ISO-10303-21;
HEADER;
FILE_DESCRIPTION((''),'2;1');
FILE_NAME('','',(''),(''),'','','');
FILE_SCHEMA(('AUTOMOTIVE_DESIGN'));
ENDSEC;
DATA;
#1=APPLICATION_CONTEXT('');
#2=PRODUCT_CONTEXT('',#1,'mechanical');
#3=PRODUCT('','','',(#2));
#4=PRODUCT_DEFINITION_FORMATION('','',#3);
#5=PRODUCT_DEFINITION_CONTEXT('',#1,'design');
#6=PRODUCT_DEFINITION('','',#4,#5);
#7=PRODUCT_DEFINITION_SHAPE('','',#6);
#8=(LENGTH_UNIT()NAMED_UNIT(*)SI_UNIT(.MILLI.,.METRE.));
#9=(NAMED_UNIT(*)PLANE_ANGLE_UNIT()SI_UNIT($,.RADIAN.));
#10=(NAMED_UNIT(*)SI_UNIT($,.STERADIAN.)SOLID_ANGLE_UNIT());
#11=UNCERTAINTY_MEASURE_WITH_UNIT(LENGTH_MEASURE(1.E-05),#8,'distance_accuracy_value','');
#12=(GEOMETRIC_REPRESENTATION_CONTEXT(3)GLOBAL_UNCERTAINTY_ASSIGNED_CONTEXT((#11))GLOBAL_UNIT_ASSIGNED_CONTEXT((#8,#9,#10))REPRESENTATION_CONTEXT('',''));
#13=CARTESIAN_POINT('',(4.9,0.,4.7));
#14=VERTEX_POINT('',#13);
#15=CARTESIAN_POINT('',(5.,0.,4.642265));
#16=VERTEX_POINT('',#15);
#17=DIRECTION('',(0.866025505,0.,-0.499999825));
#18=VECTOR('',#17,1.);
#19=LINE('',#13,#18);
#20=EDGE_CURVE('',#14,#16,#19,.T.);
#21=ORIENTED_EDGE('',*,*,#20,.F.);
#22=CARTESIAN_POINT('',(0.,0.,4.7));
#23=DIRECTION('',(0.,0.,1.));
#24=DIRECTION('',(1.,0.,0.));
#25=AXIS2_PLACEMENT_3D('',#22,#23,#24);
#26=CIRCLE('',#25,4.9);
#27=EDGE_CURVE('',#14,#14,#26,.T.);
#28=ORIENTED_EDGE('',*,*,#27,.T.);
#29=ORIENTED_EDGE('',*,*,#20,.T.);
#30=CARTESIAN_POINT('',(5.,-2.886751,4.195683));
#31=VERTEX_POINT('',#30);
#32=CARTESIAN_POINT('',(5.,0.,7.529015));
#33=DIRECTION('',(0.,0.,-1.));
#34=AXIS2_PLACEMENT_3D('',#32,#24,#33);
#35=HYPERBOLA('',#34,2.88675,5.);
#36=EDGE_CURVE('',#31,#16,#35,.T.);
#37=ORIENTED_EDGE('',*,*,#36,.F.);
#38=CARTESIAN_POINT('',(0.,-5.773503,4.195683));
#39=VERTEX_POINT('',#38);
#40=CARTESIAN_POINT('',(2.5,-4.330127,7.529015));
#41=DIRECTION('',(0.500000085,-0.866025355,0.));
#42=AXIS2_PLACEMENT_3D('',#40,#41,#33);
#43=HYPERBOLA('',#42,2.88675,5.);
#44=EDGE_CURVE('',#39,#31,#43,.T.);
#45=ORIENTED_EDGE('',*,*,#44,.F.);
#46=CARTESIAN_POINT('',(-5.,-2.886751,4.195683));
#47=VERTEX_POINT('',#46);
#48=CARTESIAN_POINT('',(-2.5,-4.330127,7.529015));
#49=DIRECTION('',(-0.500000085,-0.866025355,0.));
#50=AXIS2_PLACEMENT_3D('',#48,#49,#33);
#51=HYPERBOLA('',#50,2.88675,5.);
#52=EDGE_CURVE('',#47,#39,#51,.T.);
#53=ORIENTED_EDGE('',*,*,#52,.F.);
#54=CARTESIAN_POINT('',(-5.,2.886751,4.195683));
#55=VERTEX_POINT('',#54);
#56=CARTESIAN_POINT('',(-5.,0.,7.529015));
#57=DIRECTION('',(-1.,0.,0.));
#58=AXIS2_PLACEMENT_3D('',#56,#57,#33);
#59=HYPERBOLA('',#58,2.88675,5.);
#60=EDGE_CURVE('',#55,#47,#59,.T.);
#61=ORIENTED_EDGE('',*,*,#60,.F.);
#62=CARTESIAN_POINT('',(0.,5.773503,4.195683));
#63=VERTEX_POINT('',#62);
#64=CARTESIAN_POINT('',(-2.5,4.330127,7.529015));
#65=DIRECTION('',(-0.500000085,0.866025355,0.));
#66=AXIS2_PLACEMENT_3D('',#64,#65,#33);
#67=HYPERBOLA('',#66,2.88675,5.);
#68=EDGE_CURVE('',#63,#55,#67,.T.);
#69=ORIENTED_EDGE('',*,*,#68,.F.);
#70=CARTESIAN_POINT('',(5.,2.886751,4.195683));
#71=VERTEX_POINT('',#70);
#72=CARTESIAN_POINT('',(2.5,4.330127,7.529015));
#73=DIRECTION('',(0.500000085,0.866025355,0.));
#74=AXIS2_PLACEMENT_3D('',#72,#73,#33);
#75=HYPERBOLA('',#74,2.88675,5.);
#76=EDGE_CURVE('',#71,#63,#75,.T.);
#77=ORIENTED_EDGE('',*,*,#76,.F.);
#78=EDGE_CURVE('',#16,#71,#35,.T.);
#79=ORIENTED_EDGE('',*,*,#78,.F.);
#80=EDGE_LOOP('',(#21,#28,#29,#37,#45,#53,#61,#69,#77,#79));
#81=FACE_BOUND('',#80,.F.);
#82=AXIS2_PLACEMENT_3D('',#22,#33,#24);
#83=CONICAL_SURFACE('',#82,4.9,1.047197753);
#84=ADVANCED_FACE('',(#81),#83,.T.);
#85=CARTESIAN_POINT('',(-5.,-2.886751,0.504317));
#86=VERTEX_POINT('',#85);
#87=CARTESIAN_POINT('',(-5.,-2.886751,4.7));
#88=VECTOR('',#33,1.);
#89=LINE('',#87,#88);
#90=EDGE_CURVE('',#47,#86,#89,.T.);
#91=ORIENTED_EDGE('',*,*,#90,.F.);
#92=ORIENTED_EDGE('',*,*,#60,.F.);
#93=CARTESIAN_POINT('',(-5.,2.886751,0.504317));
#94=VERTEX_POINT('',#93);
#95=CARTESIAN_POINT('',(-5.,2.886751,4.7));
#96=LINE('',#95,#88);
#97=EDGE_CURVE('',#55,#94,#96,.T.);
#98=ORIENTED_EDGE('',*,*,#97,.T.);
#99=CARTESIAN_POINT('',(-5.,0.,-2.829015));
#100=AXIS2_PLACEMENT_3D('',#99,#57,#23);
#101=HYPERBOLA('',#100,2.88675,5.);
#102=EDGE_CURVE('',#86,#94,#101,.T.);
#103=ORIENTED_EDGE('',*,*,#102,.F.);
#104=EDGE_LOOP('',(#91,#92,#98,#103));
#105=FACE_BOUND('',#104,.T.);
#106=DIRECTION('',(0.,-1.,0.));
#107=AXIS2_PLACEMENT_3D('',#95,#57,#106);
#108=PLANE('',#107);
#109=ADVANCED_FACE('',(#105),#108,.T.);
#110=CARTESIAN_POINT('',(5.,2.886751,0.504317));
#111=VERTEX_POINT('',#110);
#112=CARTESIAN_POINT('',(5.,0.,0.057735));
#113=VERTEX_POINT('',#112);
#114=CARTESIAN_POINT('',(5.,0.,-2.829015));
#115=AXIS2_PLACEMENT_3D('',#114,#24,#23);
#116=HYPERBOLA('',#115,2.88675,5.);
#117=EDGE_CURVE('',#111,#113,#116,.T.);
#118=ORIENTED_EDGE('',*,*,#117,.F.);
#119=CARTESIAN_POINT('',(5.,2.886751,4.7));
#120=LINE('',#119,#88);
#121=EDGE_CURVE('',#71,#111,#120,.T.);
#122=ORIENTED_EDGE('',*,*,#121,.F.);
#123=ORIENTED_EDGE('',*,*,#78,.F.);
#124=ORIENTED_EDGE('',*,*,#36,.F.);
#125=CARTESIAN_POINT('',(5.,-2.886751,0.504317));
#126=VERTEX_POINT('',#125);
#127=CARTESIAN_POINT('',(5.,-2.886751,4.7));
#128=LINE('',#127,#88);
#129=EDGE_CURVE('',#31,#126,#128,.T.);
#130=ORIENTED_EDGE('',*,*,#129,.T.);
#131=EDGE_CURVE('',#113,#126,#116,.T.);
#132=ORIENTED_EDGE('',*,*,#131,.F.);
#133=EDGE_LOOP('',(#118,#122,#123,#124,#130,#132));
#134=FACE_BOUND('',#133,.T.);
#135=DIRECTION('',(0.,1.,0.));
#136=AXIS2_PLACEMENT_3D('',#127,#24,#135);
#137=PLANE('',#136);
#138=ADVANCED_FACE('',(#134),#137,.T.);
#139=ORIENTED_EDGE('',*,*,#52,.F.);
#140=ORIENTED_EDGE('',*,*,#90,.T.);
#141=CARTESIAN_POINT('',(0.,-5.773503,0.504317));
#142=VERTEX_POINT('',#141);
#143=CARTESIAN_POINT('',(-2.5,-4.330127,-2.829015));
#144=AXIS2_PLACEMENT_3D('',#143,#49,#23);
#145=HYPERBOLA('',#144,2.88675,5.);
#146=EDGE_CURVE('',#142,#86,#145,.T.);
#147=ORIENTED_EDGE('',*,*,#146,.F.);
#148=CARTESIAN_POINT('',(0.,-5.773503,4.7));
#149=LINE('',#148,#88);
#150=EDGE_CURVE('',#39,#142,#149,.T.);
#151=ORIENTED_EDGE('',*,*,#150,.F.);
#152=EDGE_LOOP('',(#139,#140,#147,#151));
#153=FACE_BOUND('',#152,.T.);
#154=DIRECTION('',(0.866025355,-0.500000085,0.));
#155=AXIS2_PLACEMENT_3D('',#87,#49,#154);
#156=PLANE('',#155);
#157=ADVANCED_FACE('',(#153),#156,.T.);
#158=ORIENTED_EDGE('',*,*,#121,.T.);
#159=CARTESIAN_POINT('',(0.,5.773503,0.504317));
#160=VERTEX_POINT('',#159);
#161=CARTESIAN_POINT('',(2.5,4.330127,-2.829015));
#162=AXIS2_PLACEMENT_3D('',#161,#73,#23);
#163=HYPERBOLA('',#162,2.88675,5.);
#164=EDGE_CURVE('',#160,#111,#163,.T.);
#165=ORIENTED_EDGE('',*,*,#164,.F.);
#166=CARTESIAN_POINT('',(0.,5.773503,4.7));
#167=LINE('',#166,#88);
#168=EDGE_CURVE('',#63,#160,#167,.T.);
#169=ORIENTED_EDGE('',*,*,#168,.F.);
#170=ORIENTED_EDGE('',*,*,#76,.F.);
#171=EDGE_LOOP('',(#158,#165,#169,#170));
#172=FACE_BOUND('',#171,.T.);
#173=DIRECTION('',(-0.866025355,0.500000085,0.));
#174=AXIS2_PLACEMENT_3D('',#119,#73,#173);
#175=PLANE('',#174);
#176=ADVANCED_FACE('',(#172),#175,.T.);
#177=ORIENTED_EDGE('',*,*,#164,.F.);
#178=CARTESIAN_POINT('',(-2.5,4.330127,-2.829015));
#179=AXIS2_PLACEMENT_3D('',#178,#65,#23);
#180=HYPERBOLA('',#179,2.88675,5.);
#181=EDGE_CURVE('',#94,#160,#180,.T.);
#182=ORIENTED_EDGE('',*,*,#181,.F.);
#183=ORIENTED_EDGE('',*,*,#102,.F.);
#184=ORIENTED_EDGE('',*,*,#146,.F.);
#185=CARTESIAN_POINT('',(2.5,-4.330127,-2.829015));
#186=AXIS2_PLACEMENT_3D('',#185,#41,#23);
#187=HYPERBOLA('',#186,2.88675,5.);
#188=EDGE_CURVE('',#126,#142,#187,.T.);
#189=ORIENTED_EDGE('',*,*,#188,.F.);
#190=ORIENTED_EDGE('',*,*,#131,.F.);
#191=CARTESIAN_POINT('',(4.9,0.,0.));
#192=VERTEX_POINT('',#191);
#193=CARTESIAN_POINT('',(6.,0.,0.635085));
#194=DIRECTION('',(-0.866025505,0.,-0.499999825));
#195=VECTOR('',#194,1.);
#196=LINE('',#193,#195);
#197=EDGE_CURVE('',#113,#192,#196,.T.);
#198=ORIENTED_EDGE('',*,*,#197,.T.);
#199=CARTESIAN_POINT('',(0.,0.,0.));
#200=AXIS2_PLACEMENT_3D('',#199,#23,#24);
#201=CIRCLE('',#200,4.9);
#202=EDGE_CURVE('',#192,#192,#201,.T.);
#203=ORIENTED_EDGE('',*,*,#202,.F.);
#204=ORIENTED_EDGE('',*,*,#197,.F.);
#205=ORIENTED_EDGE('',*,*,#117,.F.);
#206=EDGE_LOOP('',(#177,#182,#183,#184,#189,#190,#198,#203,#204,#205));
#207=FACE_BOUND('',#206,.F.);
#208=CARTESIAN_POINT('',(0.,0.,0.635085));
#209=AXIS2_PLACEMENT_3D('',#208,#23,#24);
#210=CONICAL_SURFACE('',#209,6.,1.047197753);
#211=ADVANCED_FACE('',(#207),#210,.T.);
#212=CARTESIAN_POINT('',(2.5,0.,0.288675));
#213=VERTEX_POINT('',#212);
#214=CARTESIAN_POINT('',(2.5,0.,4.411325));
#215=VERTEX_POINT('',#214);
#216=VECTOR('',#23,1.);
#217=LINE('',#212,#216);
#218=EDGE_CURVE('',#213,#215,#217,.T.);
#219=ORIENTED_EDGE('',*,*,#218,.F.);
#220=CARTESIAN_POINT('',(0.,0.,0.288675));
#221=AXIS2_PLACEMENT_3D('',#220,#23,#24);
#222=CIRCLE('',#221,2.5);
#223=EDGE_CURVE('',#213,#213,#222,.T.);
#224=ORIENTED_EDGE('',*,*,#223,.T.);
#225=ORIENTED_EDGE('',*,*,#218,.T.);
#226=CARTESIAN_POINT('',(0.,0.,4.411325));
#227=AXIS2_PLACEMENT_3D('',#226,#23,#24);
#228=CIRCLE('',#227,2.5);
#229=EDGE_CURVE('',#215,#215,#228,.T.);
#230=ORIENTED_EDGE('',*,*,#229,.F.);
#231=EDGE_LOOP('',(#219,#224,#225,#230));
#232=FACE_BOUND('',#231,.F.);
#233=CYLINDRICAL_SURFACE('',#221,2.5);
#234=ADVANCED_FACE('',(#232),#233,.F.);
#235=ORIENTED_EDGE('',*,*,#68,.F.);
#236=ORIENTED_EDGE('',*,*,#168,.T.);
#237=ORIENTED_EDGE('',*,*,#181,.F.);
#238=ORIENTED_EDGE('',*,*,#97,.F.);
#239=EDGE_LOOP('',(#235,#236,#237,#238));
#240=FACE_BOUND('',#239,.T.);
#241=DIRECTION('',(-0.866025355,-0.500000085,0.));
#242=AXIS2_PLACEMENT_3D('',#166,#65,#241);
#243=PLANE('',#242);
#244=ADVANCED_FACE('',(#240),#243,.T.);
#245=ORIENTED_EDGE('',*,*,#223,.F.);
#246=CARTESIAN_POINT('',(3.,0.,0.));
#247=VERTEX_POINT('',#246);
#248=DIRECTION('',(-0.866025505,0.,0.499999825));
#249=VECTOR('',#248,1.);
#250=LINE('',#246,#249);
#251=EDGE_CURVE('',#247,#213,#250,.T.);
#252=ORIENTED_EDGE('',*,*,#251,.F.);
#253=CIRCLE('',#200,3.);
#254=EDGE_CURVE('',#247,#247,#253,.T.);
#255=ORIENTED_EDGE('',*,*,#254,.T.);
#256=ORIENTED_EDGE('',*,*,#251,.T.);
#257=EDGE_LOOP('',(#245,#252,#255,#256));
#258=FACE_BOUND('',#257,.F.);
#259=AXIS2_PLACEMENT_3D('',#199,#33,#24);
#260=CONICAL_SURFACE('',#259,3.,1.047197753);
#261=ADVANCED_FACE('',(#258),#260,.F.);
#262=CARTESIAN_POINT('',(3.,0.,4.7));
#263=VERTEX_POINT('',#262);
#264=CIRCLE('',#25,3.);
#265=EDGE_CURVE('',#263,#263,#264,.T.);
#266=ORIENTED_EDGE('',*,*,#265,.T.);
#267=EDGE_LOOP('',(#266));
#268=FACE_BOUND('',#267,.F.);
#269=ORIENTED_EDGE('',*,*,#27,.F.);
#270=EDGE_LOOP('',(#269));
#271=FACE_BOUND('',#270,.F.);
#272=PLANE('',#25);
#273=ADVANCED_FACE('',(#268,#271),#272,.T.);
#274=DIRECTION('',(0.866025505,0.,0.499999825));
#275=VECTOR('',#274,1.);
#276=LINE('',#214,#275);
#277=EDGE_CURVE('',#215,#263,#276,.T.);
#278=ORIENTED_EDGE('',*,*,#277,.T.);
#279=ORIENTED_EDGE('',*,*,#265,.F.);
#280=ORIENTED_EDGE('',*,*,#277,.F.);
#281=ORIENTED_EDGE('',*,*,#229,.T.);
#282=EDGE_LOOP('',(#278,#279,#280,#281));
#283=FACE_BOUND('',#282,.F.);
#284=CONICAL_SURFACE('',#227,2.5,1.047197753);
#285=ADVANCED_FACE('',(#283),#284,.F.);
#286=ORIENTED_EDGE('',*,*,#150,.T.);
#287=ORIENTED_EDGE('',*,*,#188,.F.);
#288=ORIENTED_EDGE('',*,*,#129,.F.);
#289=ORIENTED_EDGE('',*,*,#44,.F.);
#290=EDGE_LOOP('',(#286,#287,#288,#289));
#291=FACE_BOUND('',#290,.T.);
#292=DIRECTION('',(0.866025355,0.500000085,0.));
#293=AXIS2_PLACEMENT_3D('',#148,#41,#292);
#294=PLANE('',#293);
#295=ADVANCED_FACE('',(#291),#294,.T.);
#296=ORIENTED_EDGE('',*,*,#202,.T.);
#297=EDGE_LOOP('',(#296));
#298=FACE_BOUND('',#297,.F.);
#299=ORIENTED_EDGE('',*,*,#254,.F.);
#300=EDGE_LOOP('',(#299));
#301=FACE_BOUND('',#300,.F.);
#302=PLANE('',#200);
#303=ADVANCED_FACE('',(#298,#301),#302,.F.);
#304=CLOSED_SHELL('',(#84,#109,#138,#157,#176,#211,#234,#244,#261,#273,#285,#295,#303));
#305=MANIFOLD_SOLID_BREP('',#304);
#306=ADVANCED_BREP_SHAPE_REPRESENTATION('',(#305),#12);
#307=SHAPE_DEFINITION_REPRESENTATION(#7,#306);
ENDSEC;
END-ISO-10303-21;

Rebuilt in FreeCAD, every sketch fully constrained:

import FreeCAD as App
import Part
import Sketcher
from FreeCAD import Vector
Q = App.Units.Quantity


def add_polygon(sketch, points):
    """Adds a closed chain of lines whose ends are joined by coincident constraints."""
    first, n = sketch.GeometryCount, len(points)
    for a, b in zip(points, points[1:] + points[:1]):
        sketch.addGeometry(Part.LineSegment(App.Vector(*a, 0), App.Vector(*b, 0)), False)
    for i in range(n):
        sketch.addConstraint(Sketcher.Constraint("Coincident", first + i, 2, first + (i + 1) % n, 1))

doc = App.newDocument("Part")
body = doc.addObject("PartDesign::Body", "Body")

sketch1 = body.newObject("Sketcher::SketchObject", "Sketch")
sketch1.AttachmentSupport = (doc.getObject("XZ_Plane"), [""])
sketch1.MapMode = "FlatFace"
add_polygon(sketch1, [(2.5, 0.3), (3, 0), (4.9, 0), (6, 0.6), (6, 4.1), (4.9, 4.7), (3, 4.7), (2.5, 4.4)])
sketch1.addConstraint([
    Sketcher.Constraint("Horizontal", 1),
    Sketcher.Constraint("Vertical", 3),
    Sketcher.Constraint("Horizontal", 5),
    Sketcher.Constraint("Vertical", 7),
    Sketcher.Constraint("PointOnObject", 0, 2, -1),
    Sketcher.Constraint("Parallel", 0, 4),
    Sketcher.Constraint("Parallel", 2, 6),
    Sketcher.Constraint("Vertical", 1, 2, 4, 2),
    Sketcher.Constraint("Vertical", 0, 2, 5, 2),
    Sketcher.Constraint("Equal", 2, 4),
    Sketcher.Constraint("Angle", 0, Q("-29.999988 deg")),
    Sketcher.Constraint("DistanceX", 1, 1, 1, 2, 1.9),
    Sketcher.Constraint("DistanceX", -1, 1, 0, 2, 3.0),
    Sketcher.Constraint("DistanceX", -1, 1, 2, 2, 6.0),
    Sketcher.Constraint("DistanceY", -1, 1, 4, 2, 4.7),
    Sketcher.Constraint("DistanceX", -1, 1, 6, 2, 2.5),
])
revolution = body.newObject("PartDesign::Revolution", "Revolution")
revolution.Profile = sketch1
revolution.ReferenceAxis = (sketch1, ["V_Axis"])
revolution.Angle = 360

sketch2 = body.newObject("Sketcher::SketchObject", "Sketch001")
sketch2.AttachmentSupport = (doc.getObject("XY_Plane"), [""])
sketch2.MapMode = "FlatFace"
sketch2.AttachmentOffset = App.Placement(Vector(0, 0, 4.7), App.Rotation())
sketch2.addGeometry(Part.Circle(Vector(0, 0, 0), Vector(0, 0, 1), 7), False)
add_polygon(sketch2, [(-5, -3), (-5, 3), (0, 6), (5, 3), (5, -3), (0, -6)])
sketch2.addConstraint([
    Sketcher.Constraint("Vertical", 1),
    Sketcher.Constraint("Vertical", 4),
    Sketcher.Constraint("Symmetric", 1, 2, 4, 2, -1, 1),
    Sketcher.Constraint("Symmetric", 2, 2, 5, 2, -1, 1),
    Sketcher.Constraint("PointOnObject", 2, 2, -2),
    Sketcher.Constraint("Parallel", 3, 6),
    Sketcher.Constraint("Horizontal", 1, 2, 3, 2),
    Sketcher.Constraint("Diameter", 0, 14.0),
    Sketcher.Constraint("Angle", 2, Q("30.000006 deg")),
    Sketcher.Constraint("DistanceX", 1, 2, -1, 1, 5.0),
    Sketcher.Constraint("DistanceY", 1, 1, 1, 2, 5.773502),
    Sketcher.Constraint("DistanceX", 0, 3, -1, 1, 0.052409),
    Sketcher.Constraint("DistanceY", -1, 1, 0, 3, 0.034939),
])
pocket1 = body.newObject("PartDesign::Pocket", "Pocket")
pocket1.Profile = sketch2
pocket1.Type = "ThroughAll"

doc.recompute()
